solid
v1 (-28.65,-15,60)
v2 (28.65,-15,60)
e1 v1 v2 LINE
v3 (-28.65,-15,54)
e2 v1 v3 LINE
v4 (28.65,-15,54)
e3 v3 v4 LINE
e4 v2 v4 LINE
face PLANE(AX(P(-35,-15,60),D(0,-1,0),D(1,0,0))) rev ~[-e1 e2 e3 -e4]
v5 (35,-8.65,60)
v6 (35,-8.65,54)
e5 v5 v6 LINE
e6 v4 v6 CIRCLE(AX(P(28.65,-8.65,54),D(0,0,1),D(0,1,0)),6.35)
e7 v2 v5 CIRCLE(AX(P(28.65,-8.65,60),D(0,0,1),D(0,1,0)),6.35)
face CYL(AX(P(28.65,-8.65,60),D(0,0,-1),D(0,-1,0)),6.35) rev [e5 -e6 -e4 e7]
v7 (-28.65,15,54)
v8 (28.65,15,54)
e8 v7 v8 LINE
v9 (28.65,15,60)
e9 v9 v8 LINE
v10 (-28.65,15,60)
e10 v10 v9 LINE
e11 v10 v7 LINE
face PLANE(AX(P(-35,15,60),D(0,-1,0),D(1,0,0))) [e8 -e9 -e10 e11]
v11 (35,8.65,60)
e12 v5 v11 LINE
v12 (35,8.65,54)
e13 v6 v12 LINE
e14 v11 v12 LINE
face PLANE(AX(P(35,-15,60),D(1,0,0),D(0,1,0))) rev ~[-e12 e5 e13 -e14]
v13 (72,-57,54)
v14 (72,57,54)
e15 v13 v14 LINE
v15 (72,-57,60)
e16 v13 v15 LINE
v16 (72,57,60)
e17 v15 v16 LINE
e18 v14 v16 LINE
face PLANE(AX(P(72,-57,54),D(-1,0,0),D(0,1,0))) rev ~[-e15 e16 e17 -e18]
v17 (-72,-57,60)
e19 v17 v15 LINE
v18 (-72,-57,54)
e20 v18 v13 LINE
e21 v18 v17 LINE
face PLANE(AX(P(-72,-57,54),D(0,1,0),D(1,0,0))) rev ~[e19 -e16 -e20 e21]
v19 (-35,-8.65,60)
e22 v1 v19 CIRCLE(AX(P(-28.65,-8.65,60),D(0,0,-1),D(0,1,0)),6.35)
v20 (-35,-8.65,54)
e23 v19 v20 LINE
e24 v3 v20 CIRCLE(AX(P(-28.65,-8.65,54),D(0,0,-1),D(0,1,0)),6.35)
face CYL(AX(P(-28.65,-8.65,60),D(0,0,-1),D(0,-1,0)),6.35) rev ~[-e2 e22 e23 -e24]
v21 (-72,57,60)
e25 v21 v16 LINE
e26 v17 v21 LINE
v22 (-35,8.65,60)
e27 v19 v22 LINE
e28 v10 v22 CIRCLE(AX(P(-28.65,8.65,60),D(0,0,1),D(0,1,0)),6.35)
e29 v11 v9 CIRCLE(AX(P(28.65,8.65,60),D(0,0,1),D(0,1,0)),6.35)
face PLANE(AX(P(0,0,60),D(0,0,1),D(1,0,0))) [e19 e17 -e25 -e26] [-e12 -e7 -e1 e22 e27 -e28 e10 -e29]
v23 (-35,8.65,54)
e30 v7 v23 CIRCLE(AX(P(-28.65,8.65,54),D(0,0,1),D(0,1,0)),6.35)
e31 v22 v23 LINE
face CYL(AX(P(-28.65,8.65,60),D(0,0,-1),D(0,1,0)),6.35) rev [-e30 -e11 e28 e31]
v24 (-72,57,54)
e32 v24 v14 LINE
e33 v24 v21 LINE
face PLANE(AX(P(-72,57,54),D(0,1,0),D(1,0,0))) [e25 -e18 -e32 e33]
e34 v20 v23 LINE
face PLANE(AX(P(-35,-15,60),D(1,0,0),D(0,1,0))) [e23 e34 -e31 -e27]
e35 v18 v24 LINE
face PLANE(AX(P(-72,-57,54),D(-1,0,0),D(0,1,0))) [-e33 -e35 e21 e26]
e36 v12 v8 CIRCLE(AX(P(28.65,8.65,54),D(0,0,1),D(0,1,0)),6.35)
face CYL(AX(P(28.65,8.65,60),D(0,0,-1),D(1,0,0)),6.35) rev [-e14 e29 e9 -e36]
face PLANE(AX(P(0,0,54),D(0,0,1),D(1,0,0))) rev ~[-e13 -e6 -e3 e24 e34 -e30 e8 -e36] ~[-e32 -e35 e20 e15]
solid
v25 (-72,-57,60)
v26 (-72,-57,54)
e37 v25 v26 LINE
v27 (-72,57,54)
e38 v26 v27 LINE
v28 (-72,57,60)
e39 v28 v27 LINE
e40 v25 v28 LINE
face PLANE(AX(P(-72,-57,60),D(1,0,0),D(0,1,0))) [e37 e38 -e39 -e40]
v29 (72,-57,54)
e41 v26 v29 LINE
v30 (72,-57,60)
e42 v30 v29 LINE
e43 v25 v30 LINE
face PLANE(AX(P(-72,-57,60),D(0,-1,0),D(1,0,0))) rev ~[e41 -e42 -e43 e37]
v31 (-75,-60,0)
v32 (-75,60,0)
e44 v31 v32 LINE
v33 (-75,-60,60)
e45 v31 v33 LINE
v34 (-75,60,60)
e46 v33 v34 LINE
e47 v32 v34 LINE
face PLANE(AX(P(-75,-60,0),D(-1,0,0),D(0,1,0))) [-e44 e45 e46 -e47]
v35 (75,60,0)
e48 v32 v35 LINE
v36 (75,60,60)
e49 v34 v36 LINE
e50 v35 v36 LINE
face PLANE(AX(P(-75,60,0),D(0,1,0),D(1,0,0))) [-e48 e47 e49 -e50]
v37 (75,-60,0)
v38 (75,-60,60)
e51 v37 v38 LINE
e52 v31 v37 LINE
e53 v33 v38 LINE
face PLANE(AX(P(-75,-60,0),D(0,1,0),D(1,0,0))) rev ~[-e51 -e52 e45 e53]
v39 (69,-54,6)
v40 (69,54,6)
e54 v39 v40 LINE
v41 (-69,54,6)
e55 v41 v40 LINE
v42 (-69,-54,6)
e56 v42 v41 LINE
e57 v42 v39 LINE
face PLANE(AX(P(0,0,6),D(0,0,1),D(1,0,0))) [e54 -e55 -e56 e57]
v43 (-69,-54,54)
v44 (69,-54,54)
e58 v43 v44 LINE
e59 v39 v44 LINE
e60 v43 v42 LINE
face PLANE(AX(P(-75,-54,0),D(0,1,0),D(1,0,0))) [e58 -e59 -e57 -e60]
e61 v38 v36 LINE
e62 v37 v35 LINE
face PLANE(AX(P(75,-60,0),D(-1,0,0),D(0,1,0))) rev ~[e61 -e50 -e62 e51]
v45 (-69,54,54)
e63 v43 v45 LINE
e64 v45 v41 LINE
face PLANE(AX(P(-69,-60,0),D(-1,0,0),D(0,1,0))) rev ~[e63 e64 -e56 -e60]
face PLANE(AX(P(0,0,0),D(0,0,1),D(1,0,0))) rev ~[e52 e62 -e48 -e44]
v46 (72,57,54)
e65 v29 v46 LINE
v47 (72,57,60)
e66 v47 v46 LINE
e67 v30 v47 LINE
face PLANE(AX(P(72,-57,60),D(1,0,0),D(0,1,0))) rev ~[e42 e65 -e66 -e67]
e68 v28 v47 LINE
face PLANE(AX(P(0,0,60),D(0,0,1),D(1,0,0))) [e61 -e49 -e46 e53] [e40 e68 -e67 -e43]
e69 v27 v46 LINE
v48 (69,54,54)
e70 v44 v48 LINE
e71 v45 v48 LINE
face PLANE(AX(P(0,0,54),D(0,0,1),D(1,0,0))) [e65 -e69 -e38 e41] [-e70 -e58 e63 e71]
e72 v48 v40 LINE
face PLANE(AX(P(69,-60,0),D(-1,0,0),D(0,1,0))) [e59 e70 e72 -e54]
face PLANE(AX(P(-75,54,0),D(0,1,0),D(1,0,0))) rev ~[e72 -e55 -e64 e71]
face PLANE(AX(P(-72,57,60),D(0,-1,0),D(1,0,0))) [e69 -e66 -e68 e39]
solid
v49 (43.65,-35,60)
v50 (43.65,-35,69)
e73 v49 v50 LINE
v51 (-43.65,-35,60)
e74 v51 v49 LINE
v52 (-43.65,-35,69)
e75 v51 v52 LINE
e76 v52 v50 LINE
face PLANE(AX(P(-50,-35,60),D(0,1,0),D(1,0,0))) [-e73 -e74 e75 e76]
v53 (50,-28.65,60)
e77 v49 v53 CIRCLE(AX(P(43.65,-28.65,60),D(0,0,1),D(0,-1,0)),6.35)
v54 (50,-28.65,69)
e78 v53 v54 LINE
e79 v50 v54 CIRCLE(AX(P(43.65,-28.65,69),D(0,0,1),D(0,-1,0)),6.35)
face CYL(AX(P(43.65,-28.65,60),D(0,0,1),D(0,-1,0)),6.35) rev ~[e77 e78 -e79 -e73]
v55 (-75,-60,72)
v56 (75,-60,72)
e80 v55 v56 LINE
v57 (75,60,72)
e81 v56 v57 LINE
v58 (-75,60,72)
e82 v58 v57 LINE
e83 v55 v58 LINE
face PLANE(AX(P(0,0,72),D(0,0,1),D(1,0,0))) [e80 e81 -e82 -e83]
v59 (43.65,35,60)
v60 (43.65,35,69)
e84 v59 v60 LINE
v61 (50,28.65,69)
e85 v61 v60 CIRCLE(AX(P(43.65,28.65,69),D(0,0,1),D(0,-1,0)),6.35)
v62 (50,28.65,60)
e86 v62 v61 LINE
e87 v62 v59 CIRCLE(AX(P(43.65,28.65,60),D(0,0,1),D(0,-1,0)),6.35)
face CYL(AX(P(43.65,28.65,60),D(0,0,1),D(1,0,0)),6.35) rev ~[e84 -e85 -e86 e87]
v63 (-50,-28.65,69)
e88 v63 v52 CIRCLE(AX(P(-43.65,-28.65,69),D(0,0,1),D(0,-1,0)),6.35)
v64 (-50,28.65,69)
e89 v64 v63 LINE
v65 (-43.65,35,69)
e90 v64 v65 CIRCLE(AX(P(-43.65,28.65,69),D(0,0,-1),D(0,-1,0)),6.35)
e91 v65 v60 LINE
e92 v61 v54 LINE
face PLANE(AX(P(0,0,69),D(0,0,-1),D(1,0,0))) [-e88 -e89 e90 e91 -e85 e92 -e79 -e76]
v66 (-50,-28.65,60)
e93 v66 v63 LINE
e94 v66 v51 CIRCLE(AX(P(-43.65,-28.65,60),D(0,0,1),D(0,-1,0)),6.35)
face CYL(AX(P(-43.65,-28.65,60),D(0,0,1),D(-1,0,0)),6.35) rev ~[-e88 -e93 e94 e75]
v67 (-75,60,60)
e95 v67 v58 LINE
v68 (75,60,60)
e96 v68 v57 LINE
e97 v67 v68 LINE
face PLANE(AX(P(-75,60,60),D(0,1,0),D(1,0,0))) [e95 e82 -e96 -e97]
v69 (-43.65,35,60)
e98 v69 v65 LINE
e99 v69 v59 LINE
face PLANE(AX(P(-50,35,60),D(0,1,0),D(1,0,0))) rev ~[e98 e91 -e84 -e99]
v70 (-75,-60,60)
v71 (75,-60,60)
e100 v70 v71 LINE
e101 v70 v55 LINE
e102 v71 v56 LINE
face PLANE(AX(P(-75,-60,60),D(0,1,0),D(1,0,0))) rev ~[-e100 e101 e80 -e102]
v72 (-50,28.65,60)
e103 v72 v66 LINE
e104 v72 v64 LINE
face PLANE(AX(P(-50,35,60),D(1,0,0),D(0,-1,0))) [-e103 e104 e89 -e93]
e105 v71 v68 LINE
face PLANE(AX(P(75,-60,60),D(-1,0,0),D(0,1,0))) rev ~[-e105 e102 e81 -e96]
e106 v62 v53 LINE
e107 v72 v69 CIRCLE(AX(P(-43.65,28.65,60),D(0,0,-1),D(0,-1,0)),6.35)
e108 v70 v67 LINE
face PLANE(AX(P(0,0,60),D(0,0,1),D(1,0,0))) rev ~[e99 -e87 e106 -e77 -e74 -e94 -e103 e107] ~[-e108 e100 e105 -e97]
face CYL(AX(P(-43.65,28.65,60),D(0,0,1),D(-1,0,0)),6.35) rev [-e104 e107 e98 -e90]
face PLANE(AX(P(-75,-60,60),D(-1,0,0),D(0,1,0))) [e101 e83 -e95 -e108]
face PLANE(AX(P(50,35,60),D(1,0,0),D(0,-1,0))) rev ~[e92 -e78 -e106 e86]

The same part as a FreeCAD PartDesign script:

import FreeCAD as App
import Part
import Sketcher
from FreeCAD import Vector
Q = App.Units.Quantity


def edges_at(feature, points):
    """Names of the edges that pass closest to the given points."""
    edges = feature.Shape.Edges
    near = lambda p: min(range(len(edges)), key=lambda i: edges[i].distToShape(Part.Vertex(*p))[0])
    return sorted({f"Edge{near(p) + 1}" for p in points})


def faces_at(feature, points):
    """Names of the faces that lie closest to the given points."""
    faces = feature.Shape.Faces
    near = lambda p: min(range(len(faces)), key=lambda i: faces[i].distToShape(Part.Vertex(*p))[0])
    return sorted({f"Face{near(p) + 1}" for p in points})


def add_polygon(sketch, points):
    """Adds a closed chain of lines whose ends are joined by coincident constraints."""
    first, n = sketch.GeometryCount, len(points)
    for a, b in zip(points, points[1:] + points[:1]):
        sketch.addGeometry(Part.LineSegment(App.Vector(*a, 0), App.Vector(*b, 0)), False)
    for i in range(n):
        sketch.addConstraint(Sketcher.Constraint("Coincident", first + i, 2, first + (i + 1) % n, 1))

doc = App.newDocument("Part")
body = doc.addObject("PartDesign::Body", "Body")

# Sketch on XY plane
sketch1 = doc.addObject("Sketcher::SketchObject", "Sketch")
body.addObject(sketch1)
sketch1.AttachmentSupport = (doc.XY_Plane, [""])
sketch1.MapMode = "FlatFace"
add_polygon(sketch1, [(-75, 60), (-75, -60), (75, -60), (75, 60)])  # lines 0-3
sketch1.addConstraint([
    Sketcher.Constraint("Vertical", 0),
    Sketcher.Constraint("Horizontal", 1),
    Sketcher.Constraint("Vertical", 2),
    Sketcher.Constraint("Horizontal", 3),
    Sketcher.Constraint("Symmetric", 0, 2, 2, 2, -1, 1),
    Sketcher.Constraint("DistanceX", 1, 1, 1, 2, Q("150 mm")),
    Sketcher.Constraint("DistanceY", 0, 2, 0, 1, Q("120 mm")),
])
pad1 = doc.addObject("PartDesign::Pad", "Pad")
body.addObject(pad1)
pad1.Profile = sketch1
pad1.Length = 60
doc.recompute()

thickness = doc.addObject("PartDesign::Thickness", "Thickness")
body.addObject(thickness)
thickness.Base = (pad1, faces_at(pad1, [(0, 0, 60)]))
thickness.Value = 6
thickness.Reversed = True
thickness.Join = "Arc"

# Sketch on XY plane
sketch2 = doc.addObject("Sketcher::SketchObject", "Sketch001")
body.addObject(sketch2)
sketch2.AttachmentSupport = (doc.XY_Plane, [""])
sketch2.MapMode = "FlatFace"
sketch2.AttachmentOffset = App.Placement(Vector(0, 0, 60), App.Rotation())
add_polygon(sketch2, [(-72, 57), (-72, -57), (72, -57), (72, 57)])  # lines 0-3
sketch2.addConstraint([
    Sketcher.Constraint("Vertical", 0),
    Sketcher.Constraint("Horizontal", 1),
    Sketcher.Constraint("Vertical", 2),
    Sketcher.Constraint("Horizontal", 3),
    Sketcher.Constraint("Symmetric", 0, 2, 2, 2, -1, 1),
    Sketcher.Constraint("DistanceX", 1, 1, 1, 2, Q("144 mm")),
    Sketcher.Constraint("DistanceY", 0, 2, 0, 1, Q("114 mm")),
])
pocket1 = doc.addObject("PartDesign::Pocket", "Pocket")
body.addObject(pocket1)
pocket1.Profile = sketch2
pocket1.Length = 6
body2 = doc.addObject("PartDesign::Body", "Body001")

# Sketch on XY plane
sketch3 = doc.addObject("Sketcher::SketchObject", "Sketch002")
body2.addObject(sketch3)
sketch3.AttachmentSupport = (doc.getObject("XY_Plane001"), [""])
sketch3.MapMode = "FlatFace"
sketch3.AttachmentOffset = App.Placement(Vector(0, 0, 54), App.Rotation())
add_polygon(sketch3, [(-72, 57), (-72, -57), (72, -57), (72, 57)])  # lines 0-3
sketch3.addConstraint([
    Sketcher.Constraint("Vertical", 0),
    Sketcher.Constraint("Horizontal", 1),
    Sketcher.Constraint("Vertical", 2),
    Sketcher.Constraint("Horizontal", 3),
    Sketcher.Constraint("Symmetric", 0, 2, 2, 2, -1, 1),
    Sketcher.Constraint("DistanceX", 1, 1, 1, 2, Q("144 mm")),
    Sketcher.Constraint("DistanceY", 0, 2, 0, 1, Q("114 mm")),
])
pad2 = doc.addObject("PartDesign::Pad", "Pad001")
body2.addObject(pad2)
pad2.Profile = sketch3
pad2.Length = 6

# Sketch on XY plane
sketch4 = doc.addObject("Sketcher::SketchObject", "Sketch003")
body2.addObject(sketch4)
sketch4.AttachmentSupport = (doc.getObject("XY_Plane001"), [""])
sketch4.MapMode = "FlatFace"
sketch4.AttachmentOffset = App.Placement(Vector(0, 0, 60), App.Rotation())
add_polygon(sketch4, [(-35, 15), (-35, -15), (35, -15), (35, 15)])  # lines 0-3
sketch4.addConstraint([
    Sketcher.Constraint("Vertical", 0),
    Sketcher.Constraint("Horizontal", 1),
    Sketcher.Constraint("Vertical", 2),
    Sketcher.Constraint("Horizontal", 3),
    Sketcher.Constraint("Symmetric", 0, 2, 2, 2, -1, 1),
    Sketcher.Constraint("DistanceX", 1, 1, 1, 2, Q("70 mm")),
    Sketcher.Constraint("DistanceY", 0, 2, 0, 1, Q("30 mm")),
])
pocket2 = doc.addObject("PartDesign::Pocket", "Pocket001")
body2.addObject(pocket2)
pocket2.Profile = sketch4
pocket2.Type = "ThroughAll"
doc.recompute()

fillet = doc.addObject("PartDesign::Fillet", "Fillet")
body2.addObject(fillet)
fillet.Base = (pocket2, edges_at(pocket2, [
    (-35, 15, 57),
    (35, 15, 57),
    (-35, -15, 57),
    (35, -15, 57),
]))
fillet.Radius = 6.35
body3 = doc.addObject("PartDesign::Body", "Body002")

# Sketch on XY plane
sketch5 = doc.addObject("Sketcher::SketchObject", "Sketch004")
body3.addObject(sketch5)
sketch5.AttachmentSupport = (doc.getObject("XY_Plane002"), [""])
sketch5.MapMode = "FlatFace"
sketch5.AttachmentOffset = App.Placement(Vector(0, 0, 60), App.Rotation())
add_polygon(sketch5, [(-75, 60), (-75, -60), (75, -60), (75, 60)])  # lines 0-3
sketch5.addConstraint([
    Sketcher.Constraint("Vertical", 0),
    Sketcher.Constraint("Horizontal", 1),
    Sketcher.Constraint("Vertical", 2),
    Sketcher.Constraint("Horizontal", 3),
    Sketcher.Constraint("Symmetric", 0, 2, 2, 2, -1, 1),
    Sketcher.Constraint("DistanceX", 1, 1, 1, 2, Q("150 mm")),
    Sketcher.Constraint("DistanceY", 0, 2, 0, 1, Q("120 mm")),
])
pad3 = doc.addObject("PartDesign::Pad", "Pad002")
body3.addObject(pad3)
pad3.Profile = sketch5
pad3.Length = 12

# Sketch on XY plane
sketch6 = doc.addObject("Sketcher::SketchObject", "Sketch005")
body3.addObject(sketch6)
sketch6.AttachmentSupport = (doc.getObject("XY_Plane002"), [""])
sketch6.MapMode = "FlatFace"
sketch6.AttachmentOffset = App.Placement(Vector(0, 0, 60), App.Rotation())
add_polygon(sketch6, [(-50, -35), (-50, 35), (50, 35), (50, -35)])  # lines 0-3
sketch6.addConstraint([
    Sketcher.Constraint("Vertical", 0),
    Sketcher.Constraint("Horizontal", 1),
    Sketcher.Constraint("Vertical", 2),
    Sketcher.Constraint("Horizontal", 3),
    Sketcher.Constraint("Symmetric", 0, 2, 2, 2, -1, 1),
    Sketcher.Constraint("DistanceX", 1, 1, 1, 2, Q("100 mm")),
    Sketcher.Constraint("DistanceY", 0, 1, 0, 2, Q("70 mm")),
])
pocket3 = doc.addObject("PartDesign::Pocket", "Pocket002")
body3.addObject(pocket3)
pocket3.Profile = sketch6
pocket3.Length = 9
pocket3.Reversed = True
doc.recompute()

fillet2 = doc.addObject("PartDesign::Fillet", "Fillet001")
body3.addObject(fillet2)
fillet2.Base = (pocket3, edges_at(pocket3, [
    (-50, 35, 64.5),
    (-50, -35, 64.5),
    (50, -35, 64.5),
    (50, 35, 64.5),
]))
fillet2.Radius = 6.35

doc.recompute()
